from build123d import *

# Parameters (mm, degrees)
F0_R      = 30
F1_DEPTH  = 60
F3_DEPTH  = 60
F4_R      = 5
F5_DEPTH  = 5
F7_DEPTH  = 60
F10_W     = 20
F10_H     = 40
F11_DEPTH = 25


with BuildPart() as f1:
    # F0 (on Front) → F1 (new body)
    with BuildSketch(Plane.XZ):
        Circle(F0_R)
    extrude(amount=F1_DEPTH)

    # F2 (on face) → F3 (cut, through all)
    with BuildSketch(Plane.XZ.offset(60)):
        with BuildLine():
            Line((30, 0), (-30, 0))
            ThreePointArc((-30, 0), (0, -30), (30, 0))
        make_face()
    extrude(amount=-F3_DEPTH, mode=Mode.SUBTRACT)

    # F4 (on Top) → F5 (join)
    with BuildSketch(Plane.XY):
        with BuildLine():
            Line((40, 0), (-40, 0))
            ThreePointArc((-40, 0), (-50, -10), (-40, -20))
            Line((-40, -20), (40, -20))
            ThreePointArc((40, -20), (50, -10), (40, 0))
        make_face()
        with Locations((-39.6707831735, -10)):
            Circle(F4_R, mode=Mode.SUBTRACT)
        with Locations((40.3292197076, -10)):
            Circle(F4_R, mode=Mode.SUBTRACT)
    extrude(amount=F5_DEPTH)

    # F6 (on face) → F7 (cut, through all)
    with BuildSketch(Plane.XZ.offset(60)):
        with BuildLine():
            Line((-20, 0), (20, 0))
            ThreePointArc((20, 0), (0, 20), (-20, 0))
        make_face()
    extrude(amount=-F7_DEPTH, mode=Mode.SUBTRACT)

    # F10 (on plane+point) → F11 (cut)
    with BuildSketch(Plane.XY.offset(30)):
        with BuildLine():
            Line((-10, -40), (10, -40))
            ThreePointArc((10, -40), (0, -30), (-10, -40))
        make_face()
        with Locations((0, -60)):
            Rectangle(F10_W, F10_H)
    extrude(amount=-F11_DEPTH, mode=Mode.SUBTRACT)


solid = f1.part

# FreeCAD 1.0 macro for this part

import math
import FreeCAD as App
import Part
import Sketcher

doc = App.newDocument("Part")
body = doc.addObject("PartDesign::Body", "Body")

sketch1 = body.newObject("Sketcher::SketchObject", "Sketch")
sketch1.AttachmentSupport = (doc.getObject("XZ_Plane"), [""])
sketch1.MapMode = "FlatFace"
sketch1.addGeometry(Part.Circle(App.Vector(0, 0, 0), App.Vector(0, 0, 1), 30), False)
sketch1.addConstraint(Sketcher.Constraint("Coincident", 0, 3, -1, 1))
sketch1.addConstraint(Sketcher.Constraint("Diameter", 0, 60.0))
pad1 = body.newObject("PartDesign::Pad", "Pad")
pad1.Profile = sketch1
pad1.Length = 60

sketch2 = body.newObject("Sketcher::SketchObject", "Sketch001")
sketch2.AttachmentSupport = (doc.getObject("XZ_Plane"), [""])
sketch2.MapMode = "FlatFace"
sketch2.AttachmentOffset = App.Placement(App.Vector(0, 0, 60), App.Rotation())
sketch2.addGeometry(Part.LineSegment(App.Vector(30, 0, 0), App.Vector(-30, 0, 0)), False)
sketch2.addGeometry(Part.ArcOfCircle(Part.Circle(App.Vector(0, 0, 0), App.Vector(0, 0, 1), 30), math.radians(180), math.radians(360)), False)
sketch2.addConstraint(Sketcher.Constraint("Coincident", 0, 1, 1, 2))
sketch2.addConstraint(Sketcher.Constraint("Coincident", 1, 1, 0, 2))
sketch2.addConstraint(Sketcher.Constraint("Horizontal", 0))
sketch2.addConstraint(Sketcher.Constraint("Coincident", 1, 3, -1, 1))
sketch2.addConstraint(Sketcher.Constraint("PointOnObject", 0, 1, -1))
sketch2.addConstraint(Sketcher.Constraint("Radius", 1, 30.0))
pocket1 = body.newObject("PartDesign::Pocket", "Pocket")
pocket1.Profile = sketch2
pocket1.Type = "ThroughAll"

sketch3 = body.newObject("Sketcher::SketchObject", "Sketch002")
sketch3.AttachmentSupport = (doc.getObject("XY_Plane"), [""])
sketch3.MapMode = "FlatFace"
sketch3.addGeometry(Part.LineSegment(App.Vector(40, 0, 0), App.Vector(-40, 0, 0)), False)
sketch3.addGeometry(Part.ArcOfCircle(Part.Circle(App.Vector(-40, -10, 0), App.Vector(0, 0, 1), 10), math.radians(90), math.radians(270)), False)
sketch3.addGeometry(Part.LineSegment(App.Vector(-40, -20, 0), App.Vector(40, -20, 0)), False)
sketch3.addGeometry(Part.ArcOfCircle(Part.Circle(App.Vector(40, -10, 0), App.Vector(0, 0, 1), 10), math.radians(-90), math.radians(90)), False)
sketch3.addGeometry(Part.Circle(App.Vector(-40, -10, 0), App.Vector(0, 0, 1), 5), False)
sketch3.addGeometry(Part.Circle(App.Vector(40, -10, 0), App.Vector(0, 0, 1), 5), False)
sketch3.addConstraint(Sketcher.Constraint("Tangent", 0, 2, 1, 1))
sketch3.addConstraint(Sketcher.Constraint("Tangent", 1, 2, 2, 1))
sketch3.addConstraint(Sketcher.Constraint("Tangent", 2, 2, 3, 1))
sketch3.addConstraint(Sketcher.Constraint("Tangent", 3, 2, 0, 1))
sketch3.addConstraint(Sketcher.Constraint("Horizontal", 0))
sketch3.addConstraint(Sketcher.Constraint("Horizontal", 2))
sketch3.addConstraint(Sketcher.Constraint("Equal", 4, 5))
sketch3.addConstraint(Sketcher.Constraint("Symmetric", 0, 2, 3, 2, -1, 1))
sketch3.addConstraint(Sketcher.Constraint("Horizontal", 3, 3, 4, 3))
sketch3.addConstraint(Sketcher.Constraint("Horizontal", 4, 3, 5, 3))
sketch3.addConstraint(Sketcher.Constraint("Diameter", 4, 10.0))
sketch3.addConstraint(Sketcher.Constraint("Radius", 1, 10.0))
sketch3.addConstraint(Sketcher.Constraint("DistanceX", 0, 2, 0, 1, 80.0))
sketch3.addConstraint(Sketcher.Constraint("DistanceX", -1, 1, 5, 3, 40.32922))
sketch3.addConstraint(Sketcher.Constraint("DistanceX", 4, 3, -1, 1, 39.670783))
pad2 = body.newObject("PartDesign::Pad", "Pad001")
pad2.Profile = sketch3
pad2.Length = 5

sketch4 = body.newObject("Sketcher::SketchObject", "Sketch003")
sketch4.AttachmentSupport = (doc.getObject("XZ_Plane"), [""])
sketch4.MapMode = "FlatFace"
sketch4.AttachmentOffset = App.Placement(App.Vector(0, 0, 60), App.Rotation())
sketch4.addGeometry(Part.LineSegment(App.Vector(-20, 0, 0), App.Vector(20, 0, 0)), False)
sketch4.addGeometry(Part.ArcOfCircle(Part.Circle(App.Vector(0, 0, 0), App.Vector(0, 0, 1), 20), math.radians(0), math.radians(180)), False)
sketch4.addConstraint(Sketcher.Constraint("Coincident", 0, 1, 1, 2))
sketch4.addConstraint(Sketcher.Constraint("Coincident", 1, 1, 0, 2))
sketch4.addConstraint(Sketcher.Constraint("Horizontal", 0))
sketch4.addConstraint(Sketcher.Constraint("Coincident", 1, 3, -1, 1))
sketch4.addConstraint(Sketcher.Constraint("PointOnObject", 0, 1, -1))
sketch4.addConstraint(Sketcher.Constraint("Radius", 1, 20.0))
pocket2 = body.newObject("PartDesign::Pocket", "Pocket001")
pocket2.Profile = sketch4
pocket2.Type = "ThroughAll"

sketch5 = body.newObject("Sketcher::SketchObject", "Sketch004")
sketch5.AttachmentSupport = (doc.getObject("XY_Plane"), [""])
sketch5.MapMode = "FlatFace"
sketch5.AttachmentOffset = App.Placement(App.Vector(0, 0, 30), App.Rotation())
sketch5.addGeometry(Part.ArcOfCircle(Part.Circle(App.Vector(0, -40, 0), App.Vector(0, 0, 1), 10), math.radians(0), math.radians(180)), False)
sketch5.addGeometry(Part.LineSegment(App.Vector(-10, -40, 0), App.Vector(-10, -80, 0)), False)
sketch5.addGeometry(Part.LineSegment(App.Vector(-10, -80, 0), App.Vector(10, -80, 0)), False)
sketch5.addGeometry(Part.LineSegment(App.Vector(10, -80, 0), App.Vector(10, -40, 0)), False)
sketch5.addConstraint(Sketcher.Constraint("Tangent", 0, 2, 1, 1))
sketch5.addConstraint(Sketcher.Constraint("Coincident", 1, 2, 2, 1))
sketch5.addConstraint(Sketcher.Constraint("Coincident", 2, 2, 3, 1))
sketch5.addConstraint(Sketcher.Constraint("Tangent", 3, 2, 0, 1))
sketch5.addConstraint(Sketcher.Constraint("Vertical", 1))
sketch5.addConstraint(Sketcher.Constraint("Horizontal", 2))
sketch5.addConstraint(Sketcher.Constraint("Vertical", 3))
sketch5.addConstraint(Sketcher.Constraint("PointOnObject", 0, 3, -2))
sketch5.addConstraint(Sketcher.Constraint("Radius", 0, 10.0))
sketch5.addConstraint(Sketcher.Constraint("DistanceY", 1, 2, 1, 1, 40.0))
sketch5.addConstraint(Sketcher.Constraint("DistanceY", 0, 3, -1, 1, 40.0))
pocket3 = body.newObject("PartDesign::Pocket", "Pocket002")
pocket3.Profile = sketch5
pocket3.Length = 25

doc.recompute()
